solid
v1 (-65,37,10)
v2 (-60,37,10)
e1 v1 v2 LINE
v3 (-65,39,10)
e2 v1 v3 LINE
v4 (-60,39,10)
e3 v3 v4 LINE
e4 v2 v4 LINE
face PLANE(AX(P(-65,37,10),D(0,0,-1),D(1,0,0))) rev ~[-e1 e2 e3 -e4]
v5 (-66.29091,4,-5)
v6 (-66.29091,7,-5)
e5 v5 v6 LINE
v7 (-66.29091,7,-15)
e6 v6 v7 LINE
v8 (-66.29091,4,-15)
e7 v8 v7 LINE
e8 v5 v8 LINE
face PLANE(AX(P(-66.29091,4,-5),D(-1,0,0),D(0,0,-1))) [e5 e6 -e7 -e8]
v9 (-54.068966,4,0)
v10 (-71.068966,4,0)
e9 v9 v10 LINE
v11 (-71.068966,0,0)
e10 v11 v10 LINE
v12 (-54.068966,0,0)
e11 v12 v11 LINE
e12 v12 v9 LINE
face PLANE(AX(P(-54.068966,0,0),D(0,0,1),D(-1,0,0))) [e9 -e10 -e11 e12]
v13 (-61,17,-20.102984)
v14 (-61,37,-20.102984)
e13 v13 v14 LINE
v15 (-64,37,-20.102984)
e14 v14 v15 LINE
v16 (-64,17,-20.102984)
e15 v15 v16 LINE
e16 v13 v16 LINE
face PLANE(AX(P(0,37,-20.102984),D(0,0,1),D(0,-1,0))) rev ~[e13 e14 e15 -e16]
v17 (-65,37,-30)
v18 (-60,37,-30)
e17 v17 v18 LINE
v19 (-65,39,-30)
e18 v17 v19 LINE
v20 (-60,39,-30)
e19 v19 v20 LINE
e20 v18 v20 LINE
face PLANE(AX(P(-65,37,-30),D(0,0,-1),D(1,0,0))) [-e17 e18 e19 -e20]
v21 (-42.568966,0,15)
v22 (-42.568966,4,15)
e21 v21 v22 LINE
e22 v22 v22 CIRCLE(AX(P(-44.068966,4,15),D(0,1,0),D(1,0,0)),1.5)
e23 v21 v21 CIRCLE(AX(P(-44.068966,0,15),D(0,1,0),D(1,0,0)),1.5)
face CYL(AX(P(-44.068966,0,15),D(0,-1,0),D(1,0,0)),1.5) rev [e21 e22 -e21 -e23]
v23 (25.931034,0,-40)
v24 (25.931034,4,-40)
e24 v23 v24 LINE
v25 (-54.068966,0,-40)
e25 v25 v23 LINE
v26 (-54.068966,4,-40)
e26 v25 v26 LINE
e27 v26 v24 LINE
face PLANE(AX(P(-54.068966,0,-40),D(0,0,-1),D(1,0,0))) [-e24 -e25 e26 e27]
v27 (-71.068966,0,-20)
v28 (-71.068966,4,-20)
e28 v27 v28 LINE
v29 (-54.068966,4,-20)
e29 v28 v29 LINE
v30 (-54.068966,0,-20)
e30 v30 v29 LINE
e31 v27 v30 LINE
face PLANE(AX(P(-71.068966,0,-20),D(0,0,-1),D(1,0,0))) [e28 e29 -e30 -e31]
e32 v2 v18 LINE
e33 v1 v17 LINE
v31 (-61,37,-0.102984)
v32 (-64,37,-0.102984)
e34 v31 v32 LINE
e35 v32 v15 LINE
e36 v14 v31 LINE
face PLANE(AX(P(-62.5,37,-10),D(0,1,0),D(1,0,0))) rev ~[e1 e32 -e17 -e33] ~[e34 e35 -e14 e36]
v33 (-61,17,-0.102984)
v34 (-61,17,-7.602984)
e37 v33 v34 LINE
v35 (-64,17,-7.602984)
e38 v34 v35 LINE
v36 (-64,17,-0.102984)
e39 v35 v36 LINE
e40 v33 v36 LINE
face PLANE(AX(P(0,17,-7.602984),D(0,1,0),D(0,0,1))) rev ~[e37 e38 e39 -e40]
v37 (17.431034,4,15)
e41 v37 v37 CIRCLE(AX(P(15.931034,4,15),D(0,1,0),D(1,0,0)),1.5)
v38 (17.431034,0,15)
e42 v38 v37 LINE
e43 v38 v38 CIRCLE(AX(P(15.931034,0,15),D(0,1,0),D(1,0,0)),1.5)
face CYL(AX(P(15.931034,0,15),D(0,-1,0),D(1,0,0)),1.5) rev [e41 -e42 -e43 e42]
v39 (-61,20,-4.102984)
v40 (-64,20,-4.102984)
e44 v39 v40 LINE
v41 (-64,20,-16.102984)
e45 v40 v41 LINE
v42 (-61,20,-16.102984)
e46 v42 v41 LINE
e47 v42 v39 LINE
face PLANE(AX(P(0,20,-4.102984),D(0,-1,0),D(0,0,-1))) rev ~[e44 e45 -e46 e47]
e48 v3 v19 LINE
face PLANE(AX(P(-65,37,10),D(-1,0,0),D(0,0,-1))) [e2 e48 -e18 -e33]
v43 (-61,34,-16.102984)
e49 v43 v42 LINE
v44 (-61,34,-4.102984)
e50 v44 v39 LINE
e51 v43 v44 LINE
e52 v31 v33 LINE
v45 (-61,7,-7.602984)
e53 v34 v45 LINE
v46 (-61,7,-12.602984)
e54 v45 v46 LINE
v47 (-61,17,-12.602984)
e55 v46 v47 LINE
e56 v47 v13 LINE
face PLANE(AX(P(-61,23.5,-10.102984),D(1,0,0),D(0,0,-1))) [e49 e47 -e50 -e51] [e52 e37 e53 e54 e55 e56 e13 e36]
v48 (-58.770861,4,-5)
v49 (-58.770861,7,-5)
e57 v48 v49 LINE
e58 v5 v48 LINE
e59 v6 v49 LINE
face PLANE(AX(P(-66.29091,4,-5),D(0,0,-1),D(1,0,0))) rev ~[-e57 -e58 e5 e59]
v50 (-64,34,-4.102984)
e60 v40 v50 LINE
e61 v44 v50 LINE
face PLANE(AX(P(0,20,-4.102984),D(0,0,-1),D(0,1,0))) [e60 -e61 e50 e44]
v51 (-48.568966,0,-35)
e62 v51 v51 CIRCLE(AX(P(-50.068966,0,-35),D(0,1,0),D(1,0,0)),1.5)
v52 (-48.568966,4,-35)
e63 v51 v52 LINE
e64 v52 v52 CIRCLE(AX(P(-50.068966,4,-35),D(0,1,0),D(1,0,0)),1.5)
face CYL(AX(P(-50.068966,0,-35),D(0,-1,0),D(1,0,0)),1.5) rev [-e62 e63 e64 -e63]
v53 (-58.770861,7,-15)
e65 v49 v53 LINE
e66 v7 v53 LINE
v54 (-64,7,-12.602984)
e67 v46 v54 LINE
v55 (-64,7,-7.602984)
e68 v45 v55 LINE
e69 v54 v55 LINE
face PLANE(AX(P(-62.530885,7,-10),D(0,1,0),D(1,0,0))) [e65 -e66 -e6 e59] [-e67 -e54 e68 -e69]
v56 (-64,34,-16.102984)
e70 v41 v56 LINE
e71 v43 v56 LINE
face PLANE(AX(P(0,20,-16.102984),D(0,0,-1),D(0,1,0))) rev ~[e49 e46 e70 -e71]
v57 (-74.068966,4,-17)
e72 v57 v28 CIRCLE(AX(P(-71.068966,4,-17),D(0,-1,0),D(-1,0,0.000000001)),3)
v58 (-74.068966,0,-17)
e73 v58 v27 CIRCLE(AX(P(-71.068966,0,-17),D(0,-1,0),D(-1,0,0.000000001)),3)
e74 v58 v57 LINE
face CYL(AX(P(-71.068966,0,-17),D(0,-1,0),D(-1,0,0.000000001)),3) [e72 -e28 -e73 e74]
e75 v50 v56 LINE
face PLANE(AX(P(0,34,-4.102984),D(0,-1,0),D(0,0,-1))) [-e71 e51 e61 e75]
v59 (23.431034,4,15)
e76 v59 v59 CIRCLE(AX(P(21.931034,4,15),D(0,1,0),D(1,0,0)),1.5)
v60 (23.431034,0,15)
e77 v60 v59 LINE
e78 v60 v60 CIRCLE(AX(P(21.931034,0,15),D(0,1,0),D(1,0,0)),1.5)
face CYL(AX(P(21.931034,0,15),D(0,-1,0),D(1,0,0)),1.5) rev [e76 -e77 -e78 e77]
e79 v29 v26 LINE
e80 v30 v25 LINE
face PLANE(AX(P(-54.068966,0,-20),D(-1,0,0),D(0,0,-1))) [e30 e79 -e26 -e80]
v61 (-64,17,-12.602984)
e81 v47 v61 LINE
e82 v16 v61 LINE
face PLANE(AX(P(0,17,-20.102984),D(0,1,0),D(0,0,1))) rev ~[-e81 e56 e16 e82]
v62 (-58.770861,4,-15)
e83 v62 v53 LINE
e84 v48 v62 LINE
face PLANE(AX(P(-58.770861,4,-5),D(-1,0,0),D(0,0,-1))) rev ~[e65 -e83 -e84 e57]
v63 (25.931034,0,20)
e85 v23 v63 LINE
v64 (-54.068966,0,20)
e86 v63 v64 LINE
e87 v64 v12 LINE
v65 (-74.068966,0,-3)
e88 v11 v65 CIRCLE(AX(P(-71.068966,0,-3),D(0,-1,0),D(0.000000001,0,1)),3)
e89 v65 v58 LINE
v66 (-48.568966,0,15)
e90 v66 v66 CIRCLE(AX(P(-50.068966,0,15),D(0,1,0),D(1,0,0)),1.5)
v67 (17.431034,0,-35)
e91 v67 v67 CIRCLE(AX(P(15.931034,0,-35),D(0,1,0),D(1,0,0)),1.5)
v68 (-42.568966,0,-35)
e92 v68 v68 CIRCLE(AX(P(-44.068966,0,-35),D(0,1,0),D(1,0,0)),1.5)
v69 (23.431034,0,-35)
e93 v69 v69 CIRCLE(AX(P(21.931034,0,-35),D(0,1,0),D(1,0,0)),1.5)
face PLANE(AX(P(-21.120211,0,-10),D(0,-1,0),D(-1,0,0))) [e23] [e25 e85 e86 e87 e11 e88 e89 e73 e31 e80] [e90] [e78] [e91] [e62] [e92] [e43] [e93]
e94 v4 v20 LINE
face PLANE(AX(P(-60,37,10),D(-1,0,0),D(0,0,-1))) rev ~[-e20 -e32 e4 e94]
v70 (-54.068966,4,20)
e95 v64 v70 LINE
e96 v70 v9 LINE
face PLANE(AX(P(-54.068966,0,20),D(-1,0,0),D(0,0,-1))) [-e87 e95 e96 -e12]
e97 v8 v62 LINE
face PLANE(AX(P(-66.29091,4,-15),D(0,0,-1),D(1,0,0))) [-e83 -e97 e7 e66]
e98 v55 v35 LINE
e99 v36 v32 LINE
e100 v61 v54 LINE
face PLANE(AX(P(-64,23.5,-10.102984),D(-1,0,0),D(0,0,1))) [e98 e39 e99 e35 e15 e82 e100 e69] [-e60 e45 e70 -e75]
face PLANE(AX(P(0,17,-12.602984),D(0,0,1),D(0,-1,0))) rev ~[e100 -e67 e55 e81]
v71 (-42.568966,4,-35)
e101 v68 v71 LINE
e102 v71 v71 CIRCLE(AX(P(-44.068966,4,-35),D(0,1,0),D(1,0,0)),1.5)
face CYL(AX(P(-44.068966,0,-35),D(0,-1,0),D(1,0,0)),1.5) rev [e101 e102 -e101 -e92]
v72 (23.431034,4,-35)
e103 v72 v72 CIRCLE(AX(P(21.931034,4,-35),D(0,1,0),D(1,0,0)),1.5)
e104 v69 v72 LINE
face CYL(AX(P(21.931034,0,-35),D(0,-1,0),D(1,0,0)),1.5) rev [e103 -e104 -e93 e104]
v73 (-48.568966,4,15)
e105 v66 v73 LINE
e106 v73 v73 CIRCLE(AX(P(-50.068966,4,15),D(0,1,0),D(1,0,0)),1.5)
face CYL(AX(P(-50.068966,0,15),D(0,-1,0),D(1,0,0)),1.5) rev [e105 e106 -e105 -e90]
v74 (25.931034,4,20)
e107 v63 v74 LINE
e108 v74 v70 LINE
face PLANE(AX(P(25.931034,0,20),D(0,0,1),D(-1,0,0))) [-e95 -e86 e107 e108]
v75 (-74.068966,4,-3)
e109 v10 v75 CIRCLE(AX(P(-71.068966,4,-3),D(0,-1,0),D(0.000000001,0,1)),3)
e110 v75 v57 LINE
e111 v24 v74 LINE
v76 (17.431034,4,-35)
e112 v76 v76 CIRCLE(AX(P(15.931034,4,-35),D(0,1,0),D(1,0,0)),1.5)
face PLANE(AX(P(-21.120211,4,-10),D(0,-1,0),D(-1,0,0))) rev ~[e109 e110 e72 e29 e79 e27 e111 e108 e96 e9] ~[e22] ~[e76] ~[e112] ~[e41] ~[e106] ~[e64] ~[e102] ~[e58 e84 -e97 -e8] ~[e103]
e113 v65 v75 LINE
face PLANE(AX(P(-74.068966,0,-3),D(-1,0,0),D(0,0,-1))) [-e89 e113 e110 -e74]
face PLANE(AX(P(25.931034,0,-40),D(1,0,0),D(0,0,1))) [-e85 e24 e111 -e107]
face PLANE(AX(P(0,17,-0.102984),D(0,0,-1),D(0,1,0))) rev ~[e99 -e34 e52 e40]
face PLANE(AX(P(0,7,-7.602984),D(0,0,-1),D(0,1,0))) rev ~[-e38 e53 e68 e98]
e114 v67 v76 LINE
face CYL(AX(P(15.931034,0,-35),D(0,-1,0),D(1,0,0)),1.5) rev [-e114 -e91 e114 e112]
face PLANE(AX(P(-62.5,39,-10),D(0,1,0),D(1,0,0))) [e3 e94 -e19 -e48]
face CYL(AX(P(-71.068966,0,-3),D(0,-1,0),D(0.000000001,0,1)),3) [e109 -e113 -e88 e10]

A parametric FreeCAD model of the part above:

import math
import FreeCAD as App
import Part
import Sketcher
from FreeCAD import Vector


def add_polygon(sketch, points):
    """Adds a closed chain of lines whose ends are joined by coincident constraints."""
    first, n = sketch.GeometryCount, len(points)
    for a, b in zip(points, points[1:] + points[:1]):
        sketch.addGeometry(Part.LineSegment(App.Vector(*a, 0), App.Vector(*b, 0)), False)
    for i in range(n):
        sketch.addConstraint(Sketcher.Constraint("Coincident", first + i, 2, first + (i + 1) % n, 1))

doc = App.newDocument("Part")
body = doc.addObject("PartDesign::Body", "Body")

# Sketch on XZ plane
sketch1 = body.newObject("Sketcher::SketchObject", "Sketch")
sketch1.AttachmentSupport = (doc.getObject("XZ_Plane"), [""])
sketch1.MapMode = "FlatFace"
sketch1.addGeometry([
    Part.LineSegment(Vector(-54.1, -40, 0), Vector(-54.1, -20, 0)),  # 0
    Part.LineSegment(Vector(-54.1, -20, 0), Vector(-71.1, -20, 0)),  # 1
    Part.ArcOfCircle(Part.Circle(Vector(-71.1, -17, 0), Vector(0, 0, 1), 3), math.radians(180), math.radians(270)),  # 2
    Part.LineSegment(Vector(-74.1, -17, 0), Vector(-74.1, -3, 0)),  # 3
    Part.ArcOfCircle(Part.Circle(Vector(-71.1, -3, 0), Vector(0, 0, 1), 3), math.radians(90), math.radians(180)),  # 4
    Part.LineSegment(Vector(-71.1, 0, 0), Vector(-54.1, 0, 0)),  # 5
    Part.LineSegment(Vector(-54.1, 0, 0), Vector(-54.1, 20, 0)),  # 6
    Part.LineSegment(Vector(-54.1, 20, 0), Vector(25.9, 20, 0)),  # 7
    Part.LineSegment(Vector(25.9, 20, 0), Vector(25.9, -40, 0)),  # 8
    Part.LineSegment(Vector(25.9, -40, 0), Vector(-54.1, -40, 0)),  # 9
    Part.Circle(Vector(21.9, 15, 0), Vector(0, 0, 1), 1.5),  # 10
    Part.Circle(Vector(15.9, 15, 0), Vector(0, 0, 1), 1.5),  # 11
    Part.Circle(Vector(-44.1, 15, 0), Vector(0, 0, 1), 1.5),  # 12
    Part.Circle(Vector(-50.1, 15, 0), Vector(0, 0, 1), 1.5),  # 13
    Part.Circle(Vector(21.9, -35, 0), Vector(0, 0, 1), 1.5),  # 14
    Part.Circle(Vector(15.9, -35, 0), Vector(0, 0, 1), 1.5),  # 15
    Part.Circle(Vector(-44.1, -35, 0), Vector(0, 0, 1), 1.5),  # 16
    Part.Circle(Vector(-50.1, -35, 0), Vector(0, 0, 1), 1.5),  # 17
], False)
sketch1.addConstraint([
    Sketcher.Constraint("Coincident", 0, 2, 1, 1),
    Sketcher.Constraint("Tangent", 1, 2, 2, 2),
    Sketcher.Constraint("Tangent", 2, 1, 3, 1),
    Sketcher.Constraint("Tangent", 3, 2, 4, 2),
    Sketcher.Constraint("Tangent", 4, 1, 5, 1),
    Sketcher.Constraint("Coincident", 5, 2, 6, 1),
    Sketcher.Constraint("Coincident", 6, 2, 7, 1),
    Sketcher.Constraint("Coincident", 7, 2, 8, 1),
    Sketcher.Constraint("Coincident", 8, 2, 9, 1),
    Sketcher.Constraint("Coincident", 9, 2, 0, 1),
    Sketcher.Constraint("Vertical", 0),
    Sketcher.Constraint("Horizontal", 1),
    Sketcher.Constraint("Vertical", 3),
    Sketcher.Constraint("Horizontal", 5),
    Sketcher.Constraint("Vertical", 6),
    Sketcher.Constraint("Horizontal", 7),
    Sketcher.Constraint("Vertical", 8),
    Sketcher.Constraint("Horizontal", 9),
    Sketcher.Constraint("Equal", 2, 4),
    Sketcher.Constraint("Equal", 10, 11),
    Sketcher.Constraint("Equal", 11, 12),
    Sketcher.Constraint("Equal", 12, 13),
    Sketcher.Constraint("Equal", 13, 14),
    Sketcher.Constraint("Equal", 14, 15),
    Sketcher.Constraint("Equal", 15, 16),
    Sketcher.Constraint("Equal", 16, 17),
    Sketcher.Constraint("Symmetric", 0, 2, 6, 2, -1),
    Sketcher.Constraint("PointOnObject", 4, 1, -1),
    Sketcher.Constraint("Horizontal", 10, 3, 11, 3),
    Sketcher.Constraint("Horizontal", 11, 3, 12, 3),
    Sketcher.Constraint("Horizontal", 12, 3, 13, 3),
    Sketcher.Constraint("Horizontal", 14, 3, 15, 3),
    Sketcher.Constraint("Horizontal", 15, 3, 16, 3),
    Sketcher.Constraint("Horizontal", 16, 3, 17, 3),
    Sketcher.Constraint("Vertical", 10, 3, 14, 3),
    Sketcher.Constraint("Vertical", 11, 3, 15, 3),
    Sketcher.Constraint("Vertical", 12, 3, 16, 3),
    Sketcher.Constraint("Vertical", 13, 3, 17, 3),
    Sketcher.Constraint("Equal", 0, 6),
    Sketcher.Constraint("Diameter", 10, 3.0),
    Sketcher.Constraint("Radius", 2, 3.0),
    Sketcher.Constraint("DistanceX", 1, 2, 1, 1, 17.0),
    Sketcher.Constraint("DistanceX", 7, 1, 7, 2, 80.0),
    Sketcher.Constraint("DistanceY", 0, 1, 0, 2, 20.0),
    Sketcher.Constraint("DistanceY", -1, 1, 10, 3, 15.0),
    Sketcher.Constraint("DistanceY", 14, 3, -1, 1, 35.0),
    Sketcher.Constraint("DistanceX", 4, 3, 10, 3, 93.0),
    Sketcher.Constraint("DistanceX", 11, 3, 10, 3, 6.0),
    Sketcher.Constraint("DistanceX", 4, 3, 12, 3, 27.0),
    Sketcher.Constraint("DistanceX", 13, 3, 12, 3, 6.0),
    Sketcher.Constraint("DistanceX", 2, 3, -1, 1, 71.068966),
])
pad1 = body.newObject("PartDesign::Pad", "Pad")
pad1.Profile = sketch1
pad1.Length = 4
pad1.Reversed = True

# Sketch on XZ plane
sketch2 = body.newObject("Sketcher::SketchObject", "Sketch001")
sketch2.AttachmentSupport = (doc.getObject("XZ_Plane"), [""])
sketch2.MapMode = "FlatFace"
sketch2.AttachmentOffset = App.Placement(Vector(0, 0, -4), App.Rotation())
add_polygon(sketch2, [(-66, -15), (-66, -5), (-59, -5), (-59, -15)])  # lines 0-3
sketch2.addConstraint([
    Sketcher.Constraint("Vertical", 0),
    Sketcher.Constraint("Horizontal", 1),
    Sketcher.Constraint("Vertical", 2),
    Sketcher.Constraint("Horizontal", 3),
    Sketcher.Constraint("DistanceY", 0, 1, 0, 2, 10.0),
    Sketcher.Constraint("DistanceY", 0, 2, -1, 1, 5.0),
    Sketcher.Constraint("DistanceX", 1, 1, 1, 2, 7.52005),
    Sketcher.Constraint("DistanceX", 0, 2, -1, 1, 66.29091),
])
pad2 = body.newObject("PartDesign::Pad", "Pad001")
pad2.Profile = sketch2
pad2.Length = 3
pad2.Reversed = True

# Sketch on YZ plane
sketch3 = body.newObject("Sketcher::SketchObject", "Sketch002")
sketch3.AttachmentSupport = (doc.getObject("YZ_Plane"), [""])
sketch3.MapMode = "FlatFace"
add_polygon(sketch3, [(17, -7.6), (7, -7.6), (7, -12.6), (17, -12.6), (17, -20.1), (37, -20.1), (37, -0.1), (17, -0.1)])  # lines 0-7
add_polygon(sketch3, [(20, -4.1), (34, -4.1), (34, -16.1), (20, -16.1)])  # lines 8-11
sketch3.addConstraint([
    Sketcher.Constraint("Horizontal", 0),
    Sketcher.Constraint("Vertical", 1),
    Sketcher.Constraint("Horizontal", 2),
    Sketcher.Constraint("Vertical", 3),
    Sketcher.Constraint("Horizontal", 4),
    Sketcher.Constraint("Vertical", 5),
    Sketcher.Constraint("Horizontal", 6),
    Sketcher.Constraint("Vertical", 7),
    Sketcher.Constraint("Horizontal", 8),
    Sketcher.Constraint("Vertical", 9),
    Sketcher.Constraint("Horizontal", 10),
    Sketcher.Constraint("Vertical", 11),
    Sketcher.Constraint("Vertical", 3, 2, 6, 2),
    Sketcher.Constraint("Equal", 6, 5),
    Sketcher.Constraint("Equal", 3, 7),
    Sketcher.Constraint("DistanceX", 0, 2, 0, 1, 10.0),
    Sketcher.Constraint("DistanceX", 4, 1, 4, 2, 20.0),
    Sketcher.Constraint("DistanceX", 8, 1, 8, 2, 14.0),
    Sketcher.Constraint("DistanceY", 1, 2, 1, 1, 5.0),
    Sketcher.Constraint("DistanceY", 9, 2, 9, 1, 12.0),
    Sketcher.Constraint("DistanceX", -1, 1, 0, 2, 7.0),
    Sketcher.Constraint("DistanceX", -1, 1, 8, 2, 34.0),
    Sketcher.Constraint("DistanceY", 8, 2, 5, 2, 4.0),
    Sketcher.Constraint("DistanceY", 0, 2, -1, 1, 7.602984),
])
pad3 = body.newObject("PartDesign::Pad", "Pad002")
pad3.Profile = sketch3
pad3.Length = 64
pad3.Reversed = True

# Sketch on YZ plane
sketch4 = body.newObject("Sketcher::SketchObject", "Sketch003")
sketch4.AttachmentSupport = (doc.getObject("YZ_Plane"), [""])
sketch4.MapMode = "FlatFace"
add_polygon(sketch4, [(37, -0.1), (17, -0.1), (17, -7.6), (7, -7.6), (7, -12.6), (17, -12.6), (17, -20.1), (37, -20.1)])  # lines 0-7
sketch4.addConstraint([
    Sketcher.Constraint("Horizontal", 0),
    Sketcher.Constraint("Vertical", 1),
    Sketcher.Constraint("Horizontal", 2),
    Sketcher.Constraint("Vertical", 3),
    Sketcher.Constraint("Horizontal", 4),
    Sketcher.Constraint("Vertical", 5),
    Sketcher.Constraint("Horizontal", 6),
    Sketcher.Constraint("Vertical", 7),
    Sketcher.Constraint("Vertical", 1, 2, 4, 2),
    Sketcher.Constraint("Equal", 1, 5),
    Sketcher.Constraint("Equal", 6, 7),
    Sketcher.Constraint("DistanceX", 0, 2, 0, 1, 20.0),
    Sketcher.Constraint("DistanceX", 2, 2, 2, 1, 10.0),
    Sketcher.Constraint("DistanceY", 3, 2, 3, 1, 5.0),
    Sketcher.Constraint("DistanceX", -1, 1, 0, 2, 17.0),
    Sketcher.Constraint("DistanceY", 0, 2, -1, 1, 0.102984),
])
pocket1 = body.newObject("PartDesign::Pocket", "Pocket")
pocket1.Profile = sketch4
pocket1.Length = 61

# Sketch on XZ plane
sketch5 = body.newObject("Sketcher::SketchObject", "Sketch004")
sketch5.AttachmentSupport = (doc.getObject("XZ_Plane"), [""])
sketch5.MapMode = "FlatFace"
sketch5.AttachmentOffset = App.Placement(Vector(0, 0, -37), App.Rotation())
add_polygon(sketch5, [(-65, -30), (-65, 10), (-60, 10), (-60, -30)])  # lines 0-3
sketch5.addConstraint([
    Sketcher.Constraint("Vertical", 0),
    Sketcher.Constraint("Horizontal", 1),
    Sketcher.Constraint("Vertical", 2),
    Sketcher.Constraint("Horizontal", 3),
    Sketcher.Constraint("DistanceX", 1, 1, 1, 2, 5.0),
    Sketcher.Constraint("DistanceY", 0, 1, 0, 2, 40.0),
    Sketcher.Constraint("DistanceX", 0, 2, -1, 1, 65.0),
    Sketcher.Constraint("DistanceY", -1, 1, 0, 2, 10.0),
])
pad4 = body.newObject("PartDesign::Pad", "Pad003")
pad4.Profile = sketch5
pad4.Length = 2
pad4.Reversed = True

doc.recompute()
